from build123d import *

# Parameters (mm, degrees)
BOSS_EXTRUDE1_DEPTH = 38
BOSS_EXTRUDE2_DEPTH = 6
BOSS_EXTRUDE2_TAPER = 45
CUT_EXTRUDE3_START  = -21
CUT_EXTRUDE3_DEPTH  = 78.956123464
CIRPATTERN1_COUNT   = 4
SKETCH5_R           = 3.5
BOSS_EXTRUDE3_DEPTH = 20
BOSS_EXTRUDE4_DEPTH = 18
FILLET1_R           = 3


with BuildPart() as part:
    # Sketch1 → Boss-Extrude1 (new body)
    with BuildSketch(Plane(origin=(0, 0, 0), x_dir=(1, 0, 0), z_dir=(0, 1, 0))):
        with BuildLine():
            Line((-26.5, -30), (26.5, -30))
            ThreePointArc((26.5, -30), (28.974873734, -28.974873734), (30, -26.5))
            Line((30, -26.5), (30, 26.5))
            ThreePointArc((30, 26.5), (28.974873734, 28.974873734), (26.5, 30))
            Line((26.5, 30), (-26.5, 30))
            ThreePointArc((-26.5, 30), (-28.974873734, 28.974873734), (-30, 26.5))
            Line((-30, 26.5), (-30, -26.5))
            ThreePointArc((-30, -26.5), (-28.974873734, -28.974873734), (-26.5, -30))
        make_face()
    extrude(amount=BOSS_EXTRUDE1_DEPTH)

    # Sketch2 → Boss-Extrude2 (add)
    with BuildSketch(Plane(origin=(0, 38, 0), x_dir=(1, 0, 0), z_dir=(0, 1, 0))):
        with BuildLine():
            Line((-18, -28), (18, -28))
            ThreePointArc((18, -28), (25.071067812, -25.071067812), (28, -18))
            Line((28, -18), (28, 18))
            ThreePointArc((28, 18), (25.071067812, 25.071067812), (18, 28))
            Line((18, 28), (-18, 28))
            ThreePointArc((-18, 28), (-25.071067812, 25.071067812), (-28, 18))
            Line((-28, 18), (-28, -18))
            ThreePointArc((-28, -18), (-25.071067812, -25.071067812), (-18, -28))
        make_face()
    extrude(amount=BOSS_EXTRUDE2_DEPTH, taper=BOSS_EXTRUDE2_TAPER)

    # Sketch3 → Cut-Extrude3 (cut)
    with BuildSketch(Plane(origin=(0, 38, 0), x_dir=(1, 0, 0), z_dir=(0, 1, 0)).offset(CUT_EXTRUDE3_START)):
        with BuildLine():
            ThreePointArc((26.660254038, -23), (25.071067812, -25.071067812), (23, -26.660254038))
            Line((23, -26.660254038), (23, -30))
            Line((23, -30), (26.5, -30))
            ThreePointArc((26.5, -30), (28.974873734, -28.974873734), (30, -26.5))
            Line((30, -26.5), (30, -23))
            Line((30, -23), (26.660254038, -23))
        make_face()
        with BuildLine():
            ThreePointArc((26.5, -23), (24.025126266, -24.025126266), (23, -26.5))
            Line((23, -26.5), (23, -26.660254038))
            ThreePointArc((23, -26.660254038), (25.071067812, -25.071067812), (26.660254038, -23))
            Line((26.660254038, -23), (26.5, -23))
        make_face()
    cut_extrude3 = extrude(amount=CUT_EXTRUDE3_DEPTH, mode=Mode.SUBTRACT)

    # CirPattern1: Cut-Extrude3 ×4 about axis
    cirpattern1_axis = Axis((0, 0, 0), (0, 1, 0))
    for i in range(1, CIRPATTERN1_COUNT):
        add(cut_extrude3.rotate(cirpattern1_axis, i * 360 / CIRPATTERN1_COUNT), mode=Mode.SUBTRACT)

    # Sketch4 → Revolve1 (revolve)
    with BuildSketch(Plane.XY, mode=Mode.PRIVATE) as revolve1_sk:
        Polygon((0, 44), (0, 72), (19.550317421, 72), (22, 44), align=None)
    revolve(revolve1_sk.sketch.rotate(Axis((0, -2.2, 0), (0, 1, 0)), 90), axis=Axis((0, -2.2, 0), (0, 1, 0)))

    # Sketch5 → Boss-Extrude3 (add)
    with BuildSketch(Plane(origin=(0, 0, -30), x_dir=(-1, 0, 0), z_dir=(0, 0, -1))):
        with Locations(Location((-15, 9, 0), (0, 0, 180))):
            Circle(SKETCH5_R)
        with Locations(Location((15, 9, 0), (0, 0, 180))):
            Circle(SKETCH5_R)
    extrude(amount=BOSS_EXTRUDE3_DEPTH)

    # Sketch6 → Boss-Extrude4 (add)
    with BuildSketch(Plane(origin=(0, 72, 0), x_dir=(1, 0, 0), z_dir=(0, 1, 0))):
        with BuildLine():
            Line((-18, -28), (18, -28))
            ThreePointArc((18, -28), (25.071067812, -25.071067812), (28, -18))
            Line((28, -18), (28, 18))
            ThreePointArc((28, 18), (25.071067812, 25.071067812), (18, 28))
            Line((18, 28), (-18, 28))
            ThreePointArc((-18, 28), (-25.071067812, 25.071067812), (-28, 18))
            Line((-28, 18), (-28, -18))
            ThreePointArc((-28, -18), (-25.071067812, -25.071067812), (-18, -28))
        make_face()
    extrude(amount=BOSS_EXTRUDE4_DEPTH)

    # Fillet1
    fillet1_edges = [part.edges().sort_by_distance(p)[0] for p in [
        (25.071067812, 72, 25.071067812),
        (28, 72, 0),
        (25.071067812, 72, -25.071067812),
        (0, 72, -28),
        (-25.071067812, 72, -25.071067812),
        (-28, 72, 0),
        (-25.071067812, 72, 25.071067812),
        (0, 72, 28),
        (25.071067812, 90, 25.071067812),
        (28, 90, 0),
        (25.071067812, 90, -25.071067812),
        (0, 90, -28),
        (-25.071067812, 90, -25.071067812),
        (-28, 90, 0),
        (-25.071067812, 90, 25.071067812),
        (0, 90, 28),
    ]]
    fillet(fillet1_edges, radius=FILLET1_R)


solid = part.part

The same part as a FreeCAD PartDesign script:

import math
import FreeCAD as App
import Part
import Sketcher
Q = App.Units.Quantity


def edges_at(feature, points):
    """Names of the edges that pass closest to the given points."""
    edges = feature.Shape.Edges
    near = lambda p: min(range(len(edges)), key=lambda i: edges[i].distToShape(Part.Vertex(*p))[0])
    return sorted({f"Edge{near(p) + 1}" for p in points})

doc = App.newDocument("Part")
body = doc.addObject("PartDesign::Body", "Body")

# Sketch on XZ plane
sketch1 = body.newObject("Sketcher::SketchObject", "Sketch")
sketch1.AttachmentSupport = (doc.getObject("XZ_Plane"), [""])
sketch1.MapMode = "FlatFace"
sketch1.addGeometry([
    Part.LineSegment(App.Vector(-26.5, 30, 0), App.Vector(26.5, 30, 0)),  # 0
    Part.ArcOfCircle(Part.Circle(App.Vector(26.5, 26.5, 0), App.Vector(0, 0, 1), 3.5), math.radians(0), math.radians(90)),  # 1
    Part.LineSegment(App.Vector(30, 26.5, 0), App.Vector(30, -26.5, 0)),  # 2
    Part.ArcOfCircle(Part.Circle(App.Vector(26.5, -26.5, 0), App.Vector(0, 0, 1), 3.5), math.radians(-90), math.radians(0)),  # 3
    Part.LineSegment(App.Vector(26.5, -30, 0), App.Vector(-26.5, -30, 0)),  # 4
    Part.ArcOfCircle(Part.Circle(App.Vector(-26.5, -26.5, 0), App.Vector(0, 0, 1), 3.5), math.radians(-180), math.radians(-90)),  # 5
    Part.LineSegment(App.Vector(-30, -26.5, 0), App.Vector(-30, 26.5, 0)),  # 6
    Part.ArcOfCircle(Part.Circle(App.Vector(-26.5, 26.5, 0), App.Vector(0, 0, 1), 3.5), math.radians(90), math.radians(180)),  # 7
], False)
sketch1.addConstraint([
    Sketcher.Constraint("Tangent", 0, 2, 1, 2),
    Sketcher.Constraint("Tangent", 1, 1, 2, 1),
    Sketcher.Constraint("Tangent", 2, 2, 3, 2),
    Sketcher.Constraint("Tangent", 3, 1, 4, 1),
    Sketcher.Constraint("Tangent", 4, 2, 5, 2),
    Sketcher.Constraint("Tangent", 5, 1, 6, 1),
    Sketcher.Constraint("Tangent", 6, 2, 7, 2),
    Sketcher.Constraint("Tangent", 7, 1, 0, 1),
    Sketcher.Constraint("Horizontal", 0),
    Sketcher.Constraint("Vertical", 2),
    Sketcher.Constraint("Horizontal", 4),
    Sketcher.Constraint("Vertical", 6),
    Sketcher.Constraint("Equal", 1, 3),
    Sketcher.Constraint("Equal", 3, 5),
    Sketcher.Constraint("Equal", 5, 7),
    Sketcher.Constraint("Symmetric", 1, 3, 5, 3, -1, 1),
    Sketcher.Constraint("Equal", 4, 2),
    Sketcher.Constraint("Radius", 1, 3.5),
    Sketcher.Constraint("DistanceX", 0, 1, 0, 2, 53.0),
])
pad1 = body.newObject("PartDesign::Pad", "Pad")
pad1.Profile = sketch1
pad1.Length = 38
pad1.Reversed = True

# Sketch on XZ plane
sketch2 = body.newObject("Sketcher::SketchObject", "Sketch001")
sketch2.AttachmentSupport = (doc.getObject("XZ_Plane"), [""])
sketch2.MapMode = "FlatFace"
sketch2.AttachmentOffset = App.Placement(App.Vector(0, 0, -38), App.Rotation())
sketch2.addGeometry([
    Part.LineSegment(App.Vector(-18, 28, 0), App.Vector(18, 28, 0)),  # 0
    Part.ArcOfCircle(Part.Circle(App.Vector(18, 18, 0), App.Vector(0, 0, 1), 10), math.radians(0), math.radians(90)),  # 1
    Part.LineSegment(App.Vector(28, 18, 0), App.Vector(28, -18, 0)),  # 2
    Part.ArcOfCircle(Part.Circle(App.Vector(18, -18, 0), App.Vector(0, 0, 1), 10), math.radians(-90), math.radians(0)),  # 3
    Part.LineSegment(App.Vector(18, -28, 0), App.Vector(-18, -28, 0)),  # 4
    Part.ArcOfCircle(Part.Circle(App.Vector(-18, -18, 0), App.Vector(0, 0, 1), 10), math.radians(180), math.radians(270)),  # 5
    Part.LineSegment(App.Vector(-28, -18, 0), App.Vector(-28, 18, 0)),  # 6
    Part.ArcOfCircle(Part.Circle(App.Vector(-18, 18, 0), App.Vector(0, 0, 1), 10), math.radians(90), math.radians(180)),  # 7
], False)
sketch2.addConstraint([
    Sketcher.Constraint("Tangent", 0, 2, 1, 2),
    Sketcher.Constraint("Tangent", 1, 1, 2, 1),
    Sketcher.Constraint("Tangent", 2, 2, 3, 2),
    Sketcher.Constraint("Tangent", 3, 1, 4, 1),
    Sketcher.Constraint("Tangent", 4, 2, 5, 2),
    Sketcher.Constraint("Tangent", 5, 1, 6, 1),
    Sketcher.Constraint("Tangent", 6, 2, 7, 2),
    Sketcher.Constraint("Tangent", 7, 1, 0, 1),
    Sketcher.Constraint("Horizontal", 0),
    Sketcher.Constraint("Vertical", 2),
    Sketcher.Constraint("Horizontal", 4),
    Sketcher.Constraint("Vertical", 6),
    Sketcher.Constraint("Equal", 1, 3),
    Sketcher.Constraint("Equal", 3, 5),
    Sketcher.Constraint("Equal", 5, 7),
    Sketcher.Constraint("Symmetric", 1, 3, 5, 3, -1, 1),
    Sketcher.Constraint("Equal", 4, 2),
    Sketcher.Constraint("Radius", 1, 10.0),
    Sketcher.Constraint("DistanceX", 0, 1, 0, 2, 36.0),
])
pad2 = body.newObject("PartDesign::Pad", "Pad001")
pad2.Profile = sketch2
pad2.Length = 6
pad2.Reversed = True
pad2.TaperAngle = -45

# Sketch on XZ plane
sketch3 = body.newObject("Sketcher::SketchObject", "Sketch002")
sketch3.AttachmentSupport = (doc.getObject("XZ_Plane"), [""])
sketch3.MapMode = "FlatFace"
sketch3.AttachmentOffset = App.Placement(App.Vector(0, 0, -17), App.Rotation())
sketch3.addGeometry([
    Part.LineSegment(App.Vector(23, 30, 0), App.Vector(26.5, 30, 0)),  # 0
    Part.ArcOfCircle(Part.Circle(App.Vector(26.5, 26.5, 0), App.Vector(0, 0, 1), 3.5), math.radians(0), math.radians(90)),  # 1
    Part.LineSegment(App.Vector(30, 26.5, 0), App.Vector(30, 23, 0)),  # 2
    Part.LineSegment(App.Vector(30, 23, 0), App.Vector(26.5, 23, 0)),  # 3
    Part.ArcOfCircle(Part.Circle(App.Vector(26.5, 26.5, 0), App.Vector(0, 0, 1), 3.5), math.radians(-180), math.radians(-90)),  # 4
    Part.LineSegment(App.Vector(23, 26.5, 0), App.Vector(23, 30, 0)),  # 5
], False)
sketch3.addConstraint([
    Sketcher.Constraint("Tangent", 0, 2, 1, 2),
    Sketcher.Constraint("Tangent", 1, 1, 2, 1),
    Sketcher.Constraint("Coincident", 2, 2, 3, 1),
    Sketcher.Constraint("Tangent", 3, 2, 4, 2),
    Sketcher.Constraint("Tangent", 4, 1, 5, 1),
    Sketcher.Constraint("Coincident", 5, 2, 0, 1),
    Sketcher.Constraint("Horizontal", 0),
    Sketcher.Constraint("Vertical", 2),
    Sketcher.Constraint("Horizontal", 3),
    Sketcher.Constraint("Vertical", 5),
    Sketcher.Constraint("Coincident", 4, 3, 1, 3),
    Sketcher.Constraint("Equal", 1, 4),
    Sketcher.Constraint("Radius", 1, 3.5),
    Sketcher.Constraint("DistanceY", -1, 1, 0, 2, 30.0),
    Sketcher.Constraint("DistanceX", -1, 1, 1, 1, 30.0),
])
pocket1 = body.newObject("PartDesign::Pocket", "Pocket")
pocket1.Profile = sketch3
pocket1.Length = 78.956123
doc.recompute()

polarpattern = body.newObject("PartDesign::PolarPattern", "PolarPattern")
polarpattern.Originals = [pocket1]
polarpattern.Axis = (doc.getObject("Y_Axis"), [""])
polarpattern.Angle = 360
polarpattern.Occurrences = 4
body.Tip = polarpattern

# Sketch on XY plane
sketch4 = body.newObject("Sketcher::SketchObject", "Sketch003")
sketch4.AttachmentSupport = (doc.getObject("XY_Plane"), [""])
sketch4.MapMode = "FlatFace"
sketch4.addGeometry([
    Part.LineSegment(App.Vector(0, 72, 0), App.Vector(0, 44, 0)),
    Part.LineSegment(App.Vector(0, 44, 0), App.Vector(22, 44, 0)),
    Part.LineSegment(App.Vector(22, 44, 0), App.Vector(20, 72, 0)),
    Part.LineSegment(App.Vector(20, 72, 0), App.Vector(0, 72, 0)),
], False)
sketch4.addConstraint([
    Sketcher.Constraint("Coincident", 0, 2, 1, 1),
    Sketcher.Constraint("Coincident", 1, 2, 2, 1),
    Sketcher.Constraint("Coincident", 2, 2, 3, 1),
    Sketcher.Constraint("Coincident", 3, 2, 0, 1),
    Sketcher.Constraint("Vertical", 0),
    Sketcher.Constraint("Horizontal", 1),
    Sketcher.Constraint("Horizontal", 3),
    Sketcher.Constraint("PointOnObject", 0, 2, -2),
    Sketcher.Constraint("DistanceX", 1, 1, 1, 2, 22.0),
    Sketcher.Constraint("DistanceY", 0, 2, 0, 1, 28.0),
    Sketcher.Constraint("Angle", 2, Q("95 deg")),
    Sketcher.Constraint("DistanceY", -1, 1, 0, 2, 44.0),
])
revolution = body.newObject("PartDesign::Revolution", "Revolution")
revolution.Profile = sketch4
revolution.ReferenceAxis = (sketch4, ["V_Axis"])
revolution.Angle = 360

# Sketch on XY plane
sketch5 = body.newObject("Sketcher::SketchObject", "Sketch004")
sketch5.AttachmentSupport = (doc.getObject("XY_Plane"), [""])
sketch5.MapMode = "FlatFace"
sketch5.AttachmentOffset = App.Placement(App.Vector(0, 0, -30), App.Rotation())
sketch5.addGeometry([
    Part.Circle(App.Vector(15, 9, 0), App.Vector(0, 0, 1), 3.5),
    Part.Circle(App.Vector(-15, 9, 0), App.Vector(0, 0, 1), 3.5),
], False)
sketch5.addConstraint([
    Sketcher.Constraint("Equal", 0, 1),
    Sketcher.Constraint("Symmetric", 0, 3, 1, 3, -2),
    Sketcher.Constraint("Diameter", 0, 7.0),
    Sketcher.Constraint("DistanceX", -1, 1, 0, 3, 15.0),
    Sketcher.Constraint("DistanceY", -1, 1, 0, 3, 9.0),
])
pad3 = body.newObject("PartDesign::Pad", "Pad002")
pad3.Profile = sketch5
pad3.Length = 20
pad3.Reversed = True

# Sketch on XZ plane
sketch6 = body.newObject("Sketcher::SketchObject", "Sketch005")
sketch6.AttachmentSupport = (doc.getObject("XZ_Plane"), [""])
sketch6.MapMode = "FlatFace"
sketch6.AttachmentOffset = App.Placement(App.Vector(0, 0, -72), App.Rotation())
sketch6.addGeometry([
    Part.LineSegment(App.Vector(-18, 28, 0), App.Vector(18, 28, 0)),  # 0
    Part.ArcOfCircle(Part.Circle(App.Vector(18, 18, 0), App.Vector(0, 0, 1), 10), math.radians(0), math.radians(90)),  # 1
    Part.LineSegment(App.Vector(28, 18, 0), App.Vector(28, -18, 0)),  # 2
    Part.ArcOfCircle(Part.Circle(App.Vector(18, -18, 0), App.Vector(0, 0, 1), 10), math.radians(-90), math.radians(0)),  # 3
    Part.LineSegment(App.Vector(18, -28, 0), App.Vector(-18, -28, 0)),  # 4
    Part.ArcOfCircle(Part.Circle(App.Vector(-18, -18, 0), App.Vector(0, 0, 1), 10), math.radians(180), math.radians(270)),  # 5
    Part.LineSegment(App.Vector(-28, -18, 0), App.Vector(-28, 18, 0)),  # 6
    Part.ArcOfCircle(Part.Circle(App.Vector(-18, 18, 0), App.Vector(0, 0, 1), 10), math.radians(90), math.radians(180)),  # 7
], False)
sketch6.addConstraint([
    Sketcher.Constraint("Tangent", 0, 2, 1, 2),
    Sketcher.Constraint("Tangent", 1, 1, 2, 1),
    Sketcher.Constraint("Tangent", 2, 2, 3, 2),
    Sketcher.Constraint("Tangent", 3, 1, 4, 1),
    Sketcher.Constraint("Tangent", 4, 2, 5, 2),
    Sketcher.Constraint("Tangent", 5, 1, 6, 1),
    Sketcher.Constraint("Tangent", 6, 2, 7, 2),
    Sketcher.Constraint("Tangent", 7, 1, 0, 1),
    Sketcher.Constraint("Horizontal", 0),
    Sketcher.Constraint("Vertical", 2),
    Sketcher.Constraint("Horizontal", 4),
    Sketcher.Constraint("Vertical", 6),
    Sketcher.Constraint("Equal", 1, 3),
    Sketcher.Constraint("Equal", 3, 5),
    Sketcher.Constraint("Equal", 5, 7),
    Sketcher.Constraint("Symmetric", 1, 3, 5, 3, -1, 1),
    Sketcher.Constraint("Equal", 4, 2),
    Sketcher.Constraint("Radius", 1, 10.0),
    Sketcher.Constraint("DistanceX", 0, 1, 0, 2, 36.0),
])
pad4 = body.newObject("PartDesign::Pad", "Pad003")
pad4.Profile = sketch6
pad4.Length = 18
pad4.Reversed = True
doc.recompute()

fillet = body.newObject("PartDesign::Fillet", "Fillet")
fillet.Base = (pad4, edges_at(pad4, [
    (25.071, 72, 25.071),
    (28, 72, 0),
    (25.071, 72, -25.071),
    (0, 72, -28),
    (-25.071, 72, -25.071),
    (-28, 72, 0),
    (-25.071, 72, 25.071),
    (0, 72, 28),
    (25.071, 90, 25.071),
    (28, 90, 0),
    (25.071, 90, -25.071),
    (0, 90, -28),
    (-25.071, 90, -25.071),
    (-28, 90, 0),
    (-25.071, 90, 25.071),
    (0, 90, 28),
]))
fillet.Radius = 3

doc.recompute()
